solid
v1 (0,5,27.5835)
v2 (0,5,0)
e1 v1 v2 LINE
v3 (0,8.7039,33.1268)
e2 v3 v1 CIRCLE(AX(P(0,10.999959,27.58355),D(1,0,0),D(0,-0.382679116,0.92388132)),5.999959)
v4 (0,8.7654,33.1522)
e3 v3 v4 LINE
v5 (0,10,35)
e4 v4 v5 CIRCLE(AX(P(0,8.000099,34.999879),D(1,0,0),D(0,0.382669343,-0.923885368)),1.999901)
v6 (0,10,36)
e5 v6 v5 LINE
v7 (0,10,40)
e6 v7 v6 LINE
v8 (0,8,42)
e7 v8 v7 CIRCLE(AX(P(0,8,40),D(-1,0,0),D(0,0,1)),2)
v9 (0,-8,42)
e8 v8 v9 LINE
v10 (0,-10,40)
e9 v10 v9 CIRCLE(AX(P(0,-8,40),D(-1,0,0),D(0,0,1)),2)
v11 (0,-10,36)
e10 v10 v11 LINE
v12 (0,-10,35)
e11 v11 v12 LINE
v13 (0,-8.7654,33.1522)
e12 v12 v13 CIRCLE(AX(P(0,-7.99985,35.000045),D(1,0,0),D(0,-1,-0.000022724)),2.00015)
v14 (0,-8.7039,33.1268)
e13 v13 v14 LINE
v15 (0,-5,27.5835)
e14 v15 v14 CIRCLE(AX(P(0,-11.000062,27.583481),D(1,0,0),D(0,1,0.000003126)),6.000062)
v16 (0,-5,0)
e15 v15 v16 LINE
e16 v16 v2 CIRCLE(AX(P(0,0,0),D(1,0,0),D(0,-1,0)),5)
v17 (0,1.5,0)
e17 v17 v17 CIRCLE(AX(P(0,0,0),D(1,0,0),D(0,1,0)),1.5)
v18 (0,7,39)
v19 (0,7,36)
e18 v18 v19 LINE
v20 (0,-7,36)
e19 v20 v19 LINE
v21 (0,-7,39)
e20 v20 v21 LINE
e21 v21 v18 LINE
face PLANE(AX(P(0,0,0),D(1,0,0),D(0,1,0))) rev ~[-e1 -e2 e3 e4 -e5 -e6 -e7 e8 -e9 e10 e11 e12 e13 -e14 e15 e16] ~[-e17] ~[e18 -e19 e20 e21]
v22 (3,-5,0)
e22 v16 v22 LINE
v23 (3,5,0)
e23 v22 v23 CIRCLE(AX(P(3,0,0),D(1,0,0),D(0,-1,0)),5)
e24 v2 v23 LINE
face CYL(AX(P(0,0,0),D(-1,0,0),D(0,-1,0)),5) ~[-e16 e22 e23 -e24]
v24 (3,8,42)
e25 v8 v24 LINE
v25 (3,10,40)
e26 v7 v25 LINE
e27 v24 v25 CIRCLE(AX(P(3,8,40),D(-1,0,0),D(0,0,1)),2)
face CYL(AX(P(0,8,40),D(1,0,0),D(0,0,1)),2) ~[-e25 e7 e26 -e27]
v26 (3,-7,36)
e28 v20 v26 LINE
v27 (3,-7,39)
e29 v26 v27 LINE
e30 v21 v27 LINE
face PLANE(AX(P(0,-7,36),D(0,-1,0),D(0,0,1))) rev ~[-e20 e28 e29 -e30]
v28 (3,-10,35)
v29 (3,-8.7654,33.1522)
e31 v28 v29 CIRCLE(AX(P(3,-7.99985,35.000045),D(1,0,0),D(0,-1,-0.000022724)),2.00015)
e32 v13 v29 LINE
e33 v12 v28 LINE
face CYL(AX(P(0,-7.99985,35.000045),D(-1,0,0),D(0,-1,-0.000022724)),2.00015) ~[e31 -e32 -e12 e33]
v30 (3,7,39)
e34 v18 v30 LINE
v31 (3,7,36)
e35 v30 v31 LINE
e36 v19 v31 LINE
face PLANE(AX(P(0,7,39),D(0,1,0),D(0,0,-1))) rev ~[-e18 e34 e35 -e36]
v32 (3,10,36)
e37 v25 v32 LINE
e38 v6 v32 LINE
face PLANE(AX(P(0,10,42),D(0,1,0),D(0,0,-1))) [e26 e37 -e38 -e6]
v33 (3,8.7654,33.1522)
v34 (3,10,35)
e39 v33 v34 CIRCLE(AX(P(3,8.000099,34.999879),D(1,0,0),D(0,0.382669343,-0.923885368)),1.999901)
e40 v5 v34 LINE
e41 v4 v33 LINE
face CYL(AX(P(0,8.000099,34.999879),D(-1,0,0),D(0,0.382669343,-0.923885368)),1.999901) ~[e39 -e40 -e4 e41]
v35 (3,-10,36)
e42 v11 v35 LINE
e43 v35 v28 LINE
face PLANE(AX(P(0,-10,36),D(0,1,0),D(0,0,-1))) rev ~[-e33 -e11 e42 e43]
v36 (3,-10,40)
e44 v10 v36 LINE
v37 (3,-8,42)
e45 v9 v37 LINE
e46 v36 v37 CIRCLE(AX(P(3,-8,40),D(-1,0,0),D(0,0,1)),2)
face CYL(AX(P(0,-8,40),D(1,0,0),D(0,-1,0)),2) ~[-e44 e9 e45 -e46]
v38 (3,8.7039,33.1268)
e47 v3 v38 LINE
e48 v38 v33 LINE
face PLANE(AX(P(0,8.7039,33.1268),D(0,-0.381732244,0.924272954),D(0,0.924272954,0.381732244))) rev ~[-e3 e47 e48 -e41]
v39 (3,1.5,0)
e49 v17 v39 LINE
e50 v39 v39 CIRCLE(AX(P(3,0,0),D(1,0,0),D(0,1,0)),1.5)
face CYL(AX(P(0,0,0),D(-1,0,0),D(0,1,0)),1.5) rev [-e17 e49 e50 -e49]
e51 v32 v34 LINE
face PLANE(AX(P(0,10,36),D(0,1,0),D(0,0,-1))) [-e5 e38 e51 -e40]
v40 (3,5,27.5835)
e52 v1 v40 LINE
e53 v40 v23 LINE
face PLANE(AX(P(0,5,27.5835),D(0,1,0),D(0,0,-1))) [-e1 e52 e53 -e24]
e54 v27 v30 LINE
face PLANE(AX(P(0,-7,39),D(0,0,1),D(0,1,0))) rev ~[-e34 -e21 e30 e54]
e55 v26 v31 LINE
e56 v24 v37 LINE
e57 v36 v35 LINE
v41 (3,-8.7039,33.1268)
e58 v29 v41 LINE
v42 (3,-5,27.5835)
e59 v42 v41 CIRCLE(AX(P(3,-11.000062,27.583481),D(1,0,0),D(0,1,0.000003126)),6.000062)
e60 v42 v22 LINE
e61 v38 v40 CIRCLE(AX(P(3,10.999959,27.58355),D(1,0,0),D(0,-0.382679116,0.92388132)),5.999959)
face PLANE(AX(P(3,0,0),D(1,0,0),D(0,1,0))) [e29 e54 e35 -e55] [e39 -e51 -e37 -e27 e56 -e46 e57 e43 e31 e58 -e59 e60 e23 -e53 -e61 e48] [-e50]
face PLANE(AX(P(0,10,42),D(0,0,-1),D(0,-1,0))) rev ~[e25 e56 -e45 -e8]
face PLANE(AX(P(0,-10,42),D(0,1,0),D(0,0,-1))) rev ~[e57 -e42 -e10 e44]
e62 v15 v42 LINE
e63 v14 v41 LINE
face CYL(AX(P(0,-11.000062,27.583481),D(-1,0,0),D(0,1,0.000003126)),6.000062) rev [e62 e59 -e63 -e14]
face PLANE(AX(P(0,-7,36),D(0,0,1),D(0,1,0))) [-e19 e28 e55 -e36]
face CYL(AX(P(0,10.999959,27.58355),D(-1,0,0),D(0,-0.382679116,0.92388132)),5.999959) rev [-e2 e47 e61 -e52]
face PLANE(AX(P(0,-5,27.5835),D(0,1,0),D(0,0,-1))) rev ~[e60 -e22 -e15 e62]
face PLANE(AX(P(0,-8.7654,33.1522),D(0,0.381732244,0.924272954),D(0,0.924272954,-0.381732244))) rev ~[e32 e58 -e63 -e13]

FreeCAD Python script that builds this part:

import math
import FreeCAD as App
import Part
import Sketcher

V = App.Vector
Q = App.Units.Quantity


def edges_at(feature, points):
    """Names of the edges that pass closest to the given points."""
    edges = feature.Shape.Edges
    near = lambda p: min(range(len(edges)), key=lambda i: edges[i].distToShape(Part.Vertex(*p))[0])
    return sorted({f"Edge{near(p) + 1}" for p in points})


def add_polygon(sketch, points):
    """Adds a closed chain of lines whose ends are joined by coincident constraints."""
    first, n = sketch.GeometryCount, len(points)
    for a, b in zip(points, points[1:] + points[:1]):
        sketch.addGeometry(Part.LineSegment(App.Vector(*a, 0), App.Vector(*b, 0)), False)
    for i in range(n):
        sketch.addConstraint(Sketcher.Constraint("Coincident", first + i, 2, first + (i + 1) % n, 1))

doc = App.newDocument("Part")
body = doc.addObject("PartDesign::Body", "Body")

# Sketch on YZ plane
sketch1 = doc.addObject("Sketcher::SketchObject", "Sketch")
body.addObject(sketch1)
sketch1.AttachmentSupport = (doc.YZ_Plane, [""])
sketch1.MapMode = "FlatFace"
sketch1.addGeometry(Part.ArcOfCircle(Part.Circle(V(-8, 35, 0), V(0, 0, 1), 2), math.radians(180), math.radians(247)), False)  # 0
sketch1.addGeometry(Part.LineSegment(V(-8.77, 33.15, 0), V(-8.7, 33.13, 0)), False)  # 1
sketch1.addGeometry(Part.ArcOfCircle(Part.Circle(V(-11, 27.58, 0), V(0, 0, 1), 6), math.radians(0), math.radians(68)), False)  # 2
sketch1.addGeometry(Part.LineSegment(V(-5, 27.58, 0), V(-5, 0, 0)), False)  # 3
sketch1.addGeometry(Part.ArcOfCircle(Part.Circle(V(0, 0, 0), V(0, 0, 1), 5), math.radians(180), math.radians(360)), False)  # 4
sketch1.addGeometry(Part.LineSegment(V(5, 0, 0), V(5, 27.58, 0)), False)  # 5
sketch1.addGeometry(Part.ArcOfCircle(Part.Circle(V(11, 27.58, 0), V(0, 0, 1), 6), math.radians(112), math.radians(180)), False)  # 6
sketch1.addGeometry(Part.LineSegment(V(8.7, 33.13, 0), V(8.77, 33.15, 0)), False)  # 7
sketch1.addGeometry(Part.ArcOfCircle(Part.Circle(V(8, 35, 0), V(0, 0, 1), 2), math.radians(-67), math.radians(0)), False)  # 8
sketch1.addGeometry(Part.LineSegment(V(10, 35, 0), V(10, 42, 0)), False)  # 9
sketch1.addGeometry(Part.LineSegment(V(10, 42, 0), V(-10, 42, 0)), False)  # 10
sketch1.addGeometry(Part.LineSegment(V(-10, 42, 0), V(-10, 35, 0)), False)  # 11
sketch1.addGeometry(Part.Circle(V(0, 0, 0), V(0, 0, 1), 1.5), False)  # 12
add_polygon(sketch1, [(7, 36), (-7, 36), (-7, 39), (7, 39)])  # lines 13-16
sketch1.addConstraint([
    Sketcher.Constraint("Coincident", 0, 2, 1, 1),
    Sketcher.Constraint("Coincident", 1, 2, 2, 2),
    Sketcher.Constraint("Tangent", 2, 1, 3, 1),
    Sketcher.Constraint("Tangent", 3, 2, 4, 1),
    Sketcher.Constraint("Tangent", 4, 2, 5, 1),
    Sketcher.Constraint("Tangent", 5, 2, 6, 2),
    Sketcher.Constraint("Coincident", 6, 1, 7, 1),
    Sketcher.Constraint("Coincident", 7, 2, 8, 1),
    Sketcher.Constraint("Tangent", 8, 2, 9, 1),
    Sketcher.Constraint("Coincident", 9, 2, 10, 1),
    Sketcher.Constraint("Coincident", 10, 2, 11, 1),
    Sketcher.Constraint("Tangent", 11, 2, 0, 1),
    Sketcher.Constraint("Vertical", 3),
    Sketcher.Constraint("Vertical", 5),
    Sketcher.Constraint("Vertical", 9),
    Sketcher.Constraint("Horizontal", 10),
    Sketcher.Constraint("Vertical", 11),
    Sketcher.Constraint("Horizontal", 13),
    Sketcher.Constraint("Vertical", 14),
    Sketcher.Constraint("Horizontal", 15),
    Sketcher.Constraint("Vertical", 16),
    Sketcher.Constraint("Coincident", 4, 3, -1, 1),
    Sketcher.Constraint("Coincident", 12, 3, -1, 1),
    Sketcher.Constraint("Equal", 2, 6),
    Sketcher.Constraint("Equal", 0, 8),
    Sketcher.Constraint("Symmetric", 0, 3, 8, 3, -2),
    Sketcher.Constraint("Symmetric", 1, 2, 6, 1, -2),
    Sketcher.Constraint("Horizontal", 0, 2, 7, 2),
    Sketcher.Constraint("Diameter", 12, 3.0),
    Sketcher.Constraint("Radius", 0, 2.0),
    Sketcher.Constraint("Radius", 2, 6.0),
    Sketcher.Constraint("Radius", 4, 5.0),
    Sketcher.Constraint("DistanceX", 10, 2, 10, 1, 20.0),
    Sketcher.Constraint("DistanceY", 14, 1, 14, 2, 3.0),
    Sketcher.Constraint("DistanceY", -1, 1, 13, 2, 36.0),
    Sketcher.Constraint("DistanceX", 0, 3, 13, 2, 1.0),
    Sketcher.Constraint("DistanceY", 0, 3, 13, 2, 1.0),
    Sketcher.Constraint("DistanceY", 13, 2, 10, 2, 6.0),
    Sketcher.Constraint("DistanceX", 15, 2, 8, 3, 1.0),
    Sketcher.Constraint("Angle", 1, Q("-22.441 deg")),
    Sketcher.Constraint("DistanceX", 1, 2, -1, 1, 8.704),
    Sketcher.Constraint("Distance", 1, 0.0665),
])
pad1 = doc.addObject("PartDesign::Pad", "Pad")
body.addObject(pad1)
pad1.Profile = sketch1
pad1.Length = 3
doc.recompute()

fillet = doc.addObject("PartDesign::Fillet", "Fillet")
body.addObject(fillet)
fillet.Base = (pad1, edges_at(pad1, [(1.5, -10, 42), (1.5, 10, 42)]))
fillet.Radius = 2

doc.recompute()
